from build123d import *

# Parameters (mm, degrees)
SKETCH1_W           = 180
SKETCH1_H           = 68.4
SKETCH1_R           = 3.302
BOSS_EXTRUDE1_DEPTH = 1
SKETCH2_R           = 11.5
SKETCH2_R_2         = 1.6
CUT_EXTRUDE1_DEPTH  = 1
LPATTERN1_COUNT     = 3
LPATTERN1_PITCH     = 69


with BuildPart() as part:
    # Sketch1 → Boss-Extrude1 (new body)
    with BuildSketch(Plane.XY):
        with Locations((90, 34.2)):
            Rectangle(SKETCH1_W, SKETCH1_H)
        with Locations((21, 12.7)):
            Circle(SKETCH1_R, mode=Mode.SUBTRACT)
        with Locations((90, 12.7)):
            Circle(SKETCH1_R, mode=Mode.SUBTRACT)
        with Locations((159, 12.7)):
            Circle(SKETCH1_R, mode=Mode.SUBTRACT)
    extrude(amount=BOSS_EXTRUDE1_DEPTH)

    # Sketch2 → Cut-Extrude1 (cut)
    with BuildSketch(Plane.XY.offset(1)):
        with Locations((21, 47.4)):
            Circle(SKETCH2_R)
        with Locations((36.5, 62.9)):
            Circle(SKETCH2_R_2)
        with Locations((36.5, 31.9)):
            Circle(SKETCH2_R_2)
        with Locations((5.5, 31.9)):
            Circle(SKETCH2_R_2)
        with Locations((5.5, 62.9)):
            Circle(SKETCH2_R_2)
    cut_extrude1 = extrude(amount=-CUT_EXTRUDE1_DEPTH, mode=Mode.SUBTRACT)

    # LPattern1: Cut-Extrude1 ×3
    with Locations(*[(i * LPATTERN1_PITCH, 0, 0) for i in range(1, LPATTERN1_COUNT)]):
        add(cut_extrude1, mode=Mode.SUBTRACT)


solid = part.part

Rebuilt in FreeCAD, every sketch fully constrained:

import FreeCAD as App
import Part
import Sketcher

V = App.Vector


def add_polygon(sketch, points):
    """Adds a closed chain of lines whose ends are joined by coincident constraints."""
    first, n = sketch.GeometryCount, len(points)
    for a, b in zip(points, points[1:] + points[:1]):
        sketch.addGeometry(Part.LineSegment(App.Vector(*a, 0), App.Vector(*b, 0)), False)
    for i in range(n):
        sketch.addConstraint(Sketcher.Constraint("Coincident", first + i, 2, first + (i + 1) % n, 1))

doc = App.newDocument("Part")
body = doc.addObject("PartDesign::Body", "Body")

sketch1 = body.newObject("Sketcher::SketchObject", "Sketch")
sketch1.AttachmentSupport = (doc.getObject("XY_Plane"), [""])
sketch1.MapMode = "FlatFace"
add_polygon(sketch1, [(0, 68.4), (0, 0), (180, 0), (180, 68.4)])
sketch1.addGeometry(Part.Circle(V(21, 12.7, 0), V(0, 0, 1), 3.3), False)
sketch1.addGeometry(Part.Circle(V(90, 12.7, 0), V(0, 0, 1), 3.3), False)
sketch1.addGeometry(Part.Circle(V(159, 12.7, 0), V(0, 0, 1), 3.3), False)
sketch1.addConstraint([
    Sketcher.Constraint("Vertical", 0),
    Sketcher.Constraint("Horizontal", 1),
    Sketcher.Constraint("Vertical", 2),
    Sketcher.Constraint("Horizontal", 3),
    Sketcher.Constraint("Coincident", 0, 2, -1, 1),
    Sketcher.Constraint("Equal", 4, 5),
    Sketcher.Constraint("Equal", 5, 6),
    Sketcher.Constraint("Horizontal", 4, 3, 5, 3),
    Sketcher.Constraint("Horizontal", 5, 3, 6, 3),
    Sketcher.Constraint("DistanceX", 1, 1, 1, 2, 180.0),
    Sketcher.Constraint("Diameter", 4, 6.604),
    Sketcher.Constraint("DistanceY", 0, 2, 0, 1, 68.4),
    Sketcher.Constraint("DistanceX", -1, 1, 4, 3, 21.0),
    Sketcher.Constraint("DistanceX", -1, 1, 5, 3, 90.0),
    Sketcher.Constraint("DistanceX", -1, 1, 6, 3, 159.0),
    Sketcher.Constraint("DistanceY", -1, 1, 4, 3, 12.7),
])
pad1 = body.newObject("PartDesign::Pad", "Pad")
pad1.Profile = sketch1
pad1.Length = 1

sketch2 = body.newObject("Sketcher::SketchObject", "Sketch001")
sketch2.AttachmentSupport = (doc.getObject("XY_Plane"), [""])
sketch2.MapMode = "FlatFace"
sketch2.AttachmentOffset = App.Placement(V(0, 0, 1), App.Rotation())
sketch2.addGeometry([
    Part.Circle(V(21, 47.4, 0), V(0, 0, 1), 11.5),
    Part.Circle(V(36.5, 62.9, 0), V(0, 0, 1), 1.6),
    Part.Circle(V(36.5, 31.9, 0), V(0, 0, 1), 1.6),
    Part.Circle(V(5.5, 31.9, 0), V(0, 0, 1), 1.6),
    Part.Circle(V(5.5, 62.9, 0), V(0, 0, 1), 1.6),
], False)
sketch2.addConstraint([
    Sketcher.Constraint("Equal", 1, 2),
    Sketcher.Constraint("Equal", 2, 3),
    Sketcher.Constraint("Equal", 3, 4),
    Sketcher.Constraint("Horizontal", 2, 3, 3, 3),
    Sketcher.Constraint("Horizontal", 1, 3, 4, 3),
    Sketcher.Constraint("Vertical", 1, 3, 2, 3),
    Sketcher.Constraint("Vertical", 3, 3, 4, 3),
    Sketcher.Constraint("Diameter", 0, 23.0),
    Sketcher.Constraint("Diameter", 1, 3.2),
    Sketcher.Constraint("DistanceX", -1, 1, 0, 3, 21.0),
    Sketcher.Constraint("DistanceY", 2, 3, 1, 3, 31.0),
    Sketcher.Constraint("DistanceX", 3, 3, 2, 3, 31.0),
    Sketcher.Constraint("DistanceY", -1, 1, 0, 3, 47.4),
    Sketcher.Constraint("DistanceX", -1, 1, 1, 3, 36.5),
    Sketcher.Constraint("DistanceY", -1, 1, 1, 3, 62.9),
])
pocket1 = body.newObject("PartDesign::Pocket", "Pocket")
pocket1.Profile = sketch2
pocket1.Length = 1
doc.recompute()

linearpattern = body.newObject("PartDesign::LinearPattern", "LinearPattern")
linearpattern.Originals = [pocket1]
linearpattern.Direction = (doc.getObject("X_Axis"), [""])
linearpattern.Mode = "offset"
linearpattern.Offset = 69
linearpattern.Occurrences = 3
body.Tip = linearpattern

doc.recompute()
